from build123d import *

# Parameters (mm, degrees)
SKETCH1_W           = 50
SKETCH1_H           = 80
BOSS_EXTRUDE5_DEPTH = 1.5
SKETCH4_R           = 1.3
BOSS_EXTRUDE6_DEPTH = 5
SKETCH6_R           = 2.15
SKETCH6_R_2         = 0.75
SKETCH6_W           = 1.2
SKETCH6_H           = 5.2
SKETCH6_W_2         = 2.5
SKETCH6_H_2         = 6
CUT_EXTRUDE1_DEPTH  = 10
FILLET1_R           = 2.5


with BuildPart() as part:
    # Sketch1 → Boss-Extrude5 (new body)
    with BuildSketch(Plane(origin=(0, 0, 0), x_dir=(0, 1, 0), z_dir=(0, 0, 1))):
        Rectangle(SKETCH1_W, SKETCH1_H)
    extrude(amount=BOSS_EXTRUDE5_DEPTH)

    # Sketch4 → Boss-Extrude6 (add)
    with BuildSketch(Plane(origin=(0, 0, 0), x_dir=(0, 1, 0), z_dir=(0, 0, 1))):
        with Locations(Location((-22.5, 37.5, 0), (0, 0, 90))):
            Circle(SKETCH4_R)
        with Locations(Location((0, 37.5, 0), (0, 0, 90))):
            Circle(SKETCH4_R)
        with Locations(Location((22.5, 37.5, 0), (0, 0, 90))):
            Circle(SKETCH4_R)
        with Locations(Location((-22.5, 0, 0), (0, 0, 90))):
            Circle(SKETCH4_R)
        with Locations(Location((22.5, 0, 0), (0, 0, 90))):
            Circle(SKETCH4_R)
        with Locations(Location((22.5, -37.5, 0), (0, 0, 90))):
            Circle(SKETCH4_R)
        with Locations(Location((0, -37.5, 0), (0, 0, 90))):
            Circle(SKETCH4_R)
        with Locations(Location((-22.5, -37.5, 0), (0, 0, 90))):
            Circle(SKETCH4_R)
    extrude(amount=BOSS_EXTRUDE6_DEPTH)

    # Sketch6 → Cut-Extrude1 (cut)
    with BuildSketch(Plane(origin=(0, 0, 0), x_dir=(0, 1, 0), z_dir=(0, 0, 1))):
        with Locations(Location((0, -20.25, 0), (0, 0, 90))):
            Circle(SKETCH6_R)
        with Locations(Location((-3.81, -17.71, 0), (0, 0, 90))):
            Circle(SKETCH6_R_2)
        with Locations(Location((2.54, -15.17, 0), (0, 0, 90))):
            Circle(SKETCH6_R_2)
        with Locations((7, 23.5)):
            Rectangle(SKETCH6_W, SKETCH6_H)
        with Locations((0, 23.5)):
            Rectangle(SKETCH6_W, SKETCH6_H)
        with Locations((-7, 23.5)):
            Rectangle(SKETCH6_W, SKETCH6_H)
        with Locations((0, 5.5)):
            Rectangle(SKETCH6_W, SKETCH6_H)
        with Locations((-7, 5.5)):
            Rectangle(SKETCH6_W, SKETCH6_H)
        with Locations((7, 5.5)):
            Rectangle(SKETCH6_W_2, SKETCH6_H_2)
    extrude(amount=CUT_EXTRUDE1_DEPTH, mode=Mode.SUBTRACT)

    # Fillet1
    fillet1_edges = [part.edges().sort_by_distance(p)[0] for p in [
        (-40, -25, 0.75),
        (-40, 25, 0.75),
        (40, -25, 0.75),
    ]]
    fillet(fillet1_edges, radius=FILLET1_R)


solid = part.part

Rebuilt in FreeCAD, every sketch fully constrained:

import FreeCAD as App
import Part
import Sketcher


def edges_at(feature, points):
    """Names of the edges that pass closest to the given points."""
    edges = feature.Shape.Edges
    near = lambda p: min(range(len(edges)), key=lambda i: edges[i].distToShape(Part.Vertex(*p))[0])
    return sorted({f"Edge{near(p) + 1}" for p in points})


def add_polygon(sketch, points):
    """Adds a closed chain of lines whose ends are joined by coincident constraints."""
    first, n = sketch.GeometryCount, len(points)
    for a, b in zip(points, points[1:] + points[:1]):
        sketch.addGeometry(Part.LineSegment(App.Vector(*a, 0), App.Vector(*b, 0)), False)
    for i in range(n):
        sketch.addConstraint(Sketcher.Constraint("Coincident", first + i, 2, first + (i + 1) % n, 1))

doc = App.newDocument("Part")
body = doc.addObject("PartDesign::Body", "Body")

# Sketch on XY plane
sketch1 = doc.addObject("Sketcher::SketchObject", "Sketch")
body.addObject(sketch1)
sketch1.AttachmentSupport = (doc.XY_Plane, [""])
sketch1.MapMode = "FlatFace"
add_polygon(sketch1, [(-40, -25), (40, -25), (40, 25), (-40, 25)])  # lines 0-3
sketch1.addConstraint(Sketcher.Constraint("Horizontal", 0))
sketch1.addConstraint(Sketcher.Constraint("Vertical", 1))
sketch1.addConstraint(Sketcher.Constraint("Horizontal", 2))
sketch1.addConstraint(Sketcher.Constraint("Vertical", 3))
sketch1.addConstraint(Sketcher.Constraint("Symmetric", 0, 2, 2, 2, -1, 1))
sketch1.addConstraint(Sketcher.Constraint("DistanceX", 0, 1, 0, 2, 80.0))
sketch1.addConstraint(Sketcher.Constraint("DistanceY", 1, 1, 1, 2, 50.0))
pad1 = doc.addObject("PartDesign::Pad", "Pad")
body.addObject(pad1)
pad1.Profile = sketch1
pad1.Length = 1.5

# Sketch on XY plane
sketch2 = doc.addObject("Sketcher::SketchObject", "Sketch001")
body.addObject(sketch2)
sketch2.AttachmentSupport = (doc.XY_Plane, [""])
sketch2.MapMode = "FlatFace"
sketch2.addGeometry(Part.Circle(App.Vector(-37.5, -22.5, 0), App.Vector(0, 0, 1), 1.3), False)
sketch2.addGeometry(Part.Circle(App.Vector(-37.5, 0, 0), App.Vector(0, 0, 1), 1.3), False)
sketch2.addGeometry(Part.Circle(App.Vector(-37.5, 22.5, 0), App.Vector(0, 0, 1), 1.3), False)
sketch2.addGeometry(Part.Circle(App.Vector(0, -22.5, 0), App.Vector(0, 0, 1), 1.3), False)
sketch2.addGeometry(Part.Circle(App.Vector(0, 22.5, 0), App.Vector(0, 0, 1), 1.3), False)
sketch2.addGeometry(Part.Circle(App.Vector(37.5, 22.5, 0), App.Vector(0, 0, 1), 1.3), False)
sketch2.addGeometry(Part.Circle(App.Vector(37.5, 0, 0), App.Vector(0, 0, 1), 1.3), False)
sketch2.addGeometry(Part.Circle(App.Vector(37.5, -22.5, 0), App.Vector(0, 0, 1), 1.3), False)
sketch2.addConstraint(Sketcher.Constraint("Equal", 0, 1))
sketch2.addConstraint(Sketcher.Constraint("Equal", 1, 2))
sketch2.addConstraint(Sketcher.Constraint("Equal", 2, 3))
sketch2.addConstraint(Sketcher.Constraint("Equal", 3, 4))
sketch2.addConstraint(Sketcher.Constraint("Equal", 4, 5))
sketch2.addConstraint(Sketcher.Constraint("Equal", 5, 6))
sketch2.addConstraint(Sketcher.Constraint("Equal", 6, 7))
sketch2.addConstraint(Sketcher.Constraint("Symmetric", 3, 3, 4, 3, -1, 1))
sketch2.addConstraint(Sketcher.Constraint("Symmetric", 0, 3, 5, 3, -1, 1))
sketch2.addConstraint(Sketcher.Constraint("Symmetric", 1, 3, 6, 3, -1, 1))
sketch2.addConstraint(Sketcher.Constraint("Symmetric", 2, 3, 7, 3, -1, 1))
sketch2.addConstraint(Sketcher.Constraint("Symmetric", 2, 3, 5, 3, -2))
sketch2.addConstraint(Sketcher.Constraint("PointOnObject", 1, 3, -1))
sketch2.addConstraint(Sketcher.Constraint("PointOnObject", 3, 3, -2))
sketch2.addConstraint(Sketcher.Constraint("Horizontal", 0, 3, 3, 3))
sketch2.addConstraint(Sketcher.Constraint("Vertical", 0, 3, 1, 3))
sketch2.addConstraint(Sketcher.Constraint("Diameter", 0, 2.6))
sketch2.addConstraint(Sketcher.Constraint("DistanceY", 0, 3, 2, 3, 45.0))
sketch2.addConstraint(Sketcher.Constraint("DistanceX", 2, 3, 5, 3, 75.0))
pad2 = doc.addObject("PartDesign::Pad", "Pad001")
body.addObject(pad2)
pad2.Profile = sketch2
pad2.Length = 5

# Sketch on XY plane
sketch3 = doc.addObject("Sketcher::SketchObject", "Sketch002")
body.addObject(sketch3)
sketch3.AttachmentSupport = (doc.XY_Plane, [""])
sketch3.MapMode = "FlatFace"
sketch3.addGeometry(Part.Circle(App.Vector(20.2, 0, 0), App.Vector(0, 0, 1), 2.1), False)  # 0
sketch3.addGeometry(Part.Circle(App.Vector(17.7, -3.8, 0), App.Vector(0, 0, 1), 0.8), False)  # 1
sketch3.addGeometry(Part.Circle(App.Vector(15.2, 2.5, 0), App.Vector(0, 0, 1), 0.8), False)  # 2
add_polygon(sketch3, [(-26.1, 6.4), (-20.9, 6.4), (-20.9, 7.6), (-26.1, 7.6)])  # lines 3-6
add_polygon(sketch3, [(-26.1, -0.6), (-20.9, -0.6), (-20.9, 0.6), (-26.1, 0.6)])  # lines 7-10
add_polygon(sketch3, [(-26.1, -7.6), (-20.9, -7.6), (-20.9, -6.4), (-26.1, -6.4)])  # lines 11-14
add_polygon(sketch3, [(-8.1, -0.6), (-2.9, -0.6), (-2.9, 0.6), (-8.1, 0.6)])  # lines 15-18
add_polygon(sketch3, [(-8.1, -7.6), (-2.9, -7.6), (-2.9, -6.4), (-8.1, -6.4)])  # lines 19-22
add_polygon(sketch3, [(-8.5, 5.8), (-2.5, 5.8), (-2.5, 8.2), (-8.5, 8.2)])  # lines 23-26
sketch3.addConstraint(Sketcher.Constraint("Horizontal", 3))
sketch3.addConstraint(Sketcher.Constraint("Vertical", 4))
sketch3.addConstraint(Sketcher.Constraint("Horizontal", 5))
sketch3.addConstraint(Sketcher.Constraint("Vertical", 6))
sketch3.addConstraint(Sketcher.Constraint("Horizontal", 7))
sketch3.addConstraint(Sketcher.Constraint("Vertical", 8))
sketch3.addConstraint(Sketcher.Constraint("Horizontal", 9))
sketch3.addConstraint(Sketcher.Constraint("Vertical", 10))
sketch3.addConstraint(Sketcher.Constraint("Horizontal", 11))
sketch3.addConstraint(Sketcher.Constraint("Vertical", 12))
sketch3.addConstraint(Sketcher.Constraint("Horizontal", 13))
sketch3.addConstraint(Sketcher.Constraint("Vertical", 14))
sketch3.addConstraint(Sketcher.Constraint("Horizontal", 15))
sketch3.addConstraint(Sketcher.Constraint("Vertical", 16))
sketch3.addConstraint(Sketcher.Constraint("Horizontal", 17))
sketch3.addConstraint(Sketcher.Constraint("Vertical", 18))
sketch3.addConstraint(Sketcher.Constraint("Horizontal", 19))
sketch3.addConstraint(Sketcher.Constraint("Vertical", 20))
sketch3.addConstraint(Sketcher.Constraint("Horizontal", 21))
sketch3.addConstraint(Sketcher.Constraint("Vertical", 22))
sketch3.addConstraint(Sketcher.Constraint("Horizontal", 23))
sketch3.addConstraint(Sketcher.Constraint("Vertical", 24))
sketch3.addConstraint(Sketcher.Constraint("Horizontal", 25))
sketch3.addConstraint(Sketcher.Constraint("Vertical", 26))
sketch3.addConstraint(Sketcher.Constraint("Equal", 1, 2))
sketch3.addConstraint(Sketcher.Constraint("Symmetric", 4, 2, 11, 2, -1))
sketch3.addConstraint(Sketcher.Constraint("Symmetric", 6, 2, 13, 2, -1))
sketch3.addConstraint(Sketcher.Constraint("PointOnObject", 0, 3, -1))
sketch3.addConstraint(Sketcher.Constraint("Horizontal", 10, 2, 15, 2))
sketch3.addConstraint(Sketcher.Constraint("Horizontal", 9, 2, 16, 2))
sketch3.addConstraint(Sketcher.Constraint("Horizontal", 14, 2, 19, 2))
sketch3.addConstraint(Sketcher.Constraint("Horizontal", 13, 2, 20, 2))
sketch3.addConstraint(Sketcher.Constraint("Vertical", 4, 2, 7, 2))
sketch3.addConstraint(Sketcher.Constraint("Vertical", 6, 2, 9, 2))
sketch3.addConstraint(Sketcher.Constraint("Vertical", 16, 2, 19, 2))
sketch3.addConstraint(Sketcher.Constraint("Vertical", 18, 2, 21, 2))
sketch3.addConstraint(Sketcher.Constraint("Equal", 13, 15))
sketch3.addConstraint(Sketcher.Constraint("Equal", 6, 8))
sketch3.addConstraint(Sketcher.Constraint("Diameter", 0, 4.3))
sketch3.addConstraint(Sketcher.Constraint("Diameter", 1, 1.5))
sketch3.addConstraint(Sketcher.Constraint("DistanceX", 23, 1, 23, 2, 6.0))
sketch3.addConstraint(Sketcher.Constraint("DistanceX", 3, 1, 3, 2, 5.2))
sketch3.addConstraint(Sketcher.Constraint("DistanceY", 4, 1, 4, 2, 1.2))
sketch3.addConstraint(Sketcher.Constraint("DistanceY", 24, 1, 24, 2, 2.5))
sketch3.addConstraint(Sketcher.Constraint("DistanceY", 7, 2, 3, 2, 7.0))
sketch3.addConstraint(Sketcher.Constraint("DistanceY", 11, 2, 7, 2, 7.0))
sketch3.addConstraint(Sketcher.Constraint("DistanceX", 7, 2, 15, 2, 18.0))
sketch3.addConstraint(Sketcher.Constraint("DistanceX", 3, 2, -1, 1, 20.9))
sketch3.addConstraint(Sketcher.Constraint("DistanceX", 23, 2, -1, 1, 2.5))
sketch3.addConstraint(Sketcher.Constraint("DistanceX", -1, 1, 0, 3, 20.25))
sketch3.addConstraint(Sketcher.Constraint("DistanceX", -1, 1, 1, 3, 17.71))
sketch3.addConstraint(Sketcher.Constraint("DistanceY", 1, 3, -1, 1, 3.81))
sketch3.addConstraint(Sketcher.Constraint("DistanceX", -1, 1, 2, 3, 15.17))
sketch3.addConstraint(Sketcher.Constraint("DistanceY", -1, 1, 2, 3, 2.54))
sketch3.addConstraint(Sketcher.Constraint("DistanceY", -1, 1, 23, 2, 5.75))
pocket1 = doc.addObject("PartDesign::Pocket", "Pocket")
body.addObject(pocket1)
pocket1.Profile = sketch3
pocket1.Length = 10
pocket1.Reversed = True
doc.recompute()

fillet = doc.addObject("PartDesign::Fillet", "Fillet")
body.addObject(fillet)
fillet.Base = (pocket1, edges_at(pocket1, [(-40, -25, 0.75), (-40, 25, 0.75), (40, -25, 0.75)]))
fillet.Radius = 2.5

doc.recompute()
